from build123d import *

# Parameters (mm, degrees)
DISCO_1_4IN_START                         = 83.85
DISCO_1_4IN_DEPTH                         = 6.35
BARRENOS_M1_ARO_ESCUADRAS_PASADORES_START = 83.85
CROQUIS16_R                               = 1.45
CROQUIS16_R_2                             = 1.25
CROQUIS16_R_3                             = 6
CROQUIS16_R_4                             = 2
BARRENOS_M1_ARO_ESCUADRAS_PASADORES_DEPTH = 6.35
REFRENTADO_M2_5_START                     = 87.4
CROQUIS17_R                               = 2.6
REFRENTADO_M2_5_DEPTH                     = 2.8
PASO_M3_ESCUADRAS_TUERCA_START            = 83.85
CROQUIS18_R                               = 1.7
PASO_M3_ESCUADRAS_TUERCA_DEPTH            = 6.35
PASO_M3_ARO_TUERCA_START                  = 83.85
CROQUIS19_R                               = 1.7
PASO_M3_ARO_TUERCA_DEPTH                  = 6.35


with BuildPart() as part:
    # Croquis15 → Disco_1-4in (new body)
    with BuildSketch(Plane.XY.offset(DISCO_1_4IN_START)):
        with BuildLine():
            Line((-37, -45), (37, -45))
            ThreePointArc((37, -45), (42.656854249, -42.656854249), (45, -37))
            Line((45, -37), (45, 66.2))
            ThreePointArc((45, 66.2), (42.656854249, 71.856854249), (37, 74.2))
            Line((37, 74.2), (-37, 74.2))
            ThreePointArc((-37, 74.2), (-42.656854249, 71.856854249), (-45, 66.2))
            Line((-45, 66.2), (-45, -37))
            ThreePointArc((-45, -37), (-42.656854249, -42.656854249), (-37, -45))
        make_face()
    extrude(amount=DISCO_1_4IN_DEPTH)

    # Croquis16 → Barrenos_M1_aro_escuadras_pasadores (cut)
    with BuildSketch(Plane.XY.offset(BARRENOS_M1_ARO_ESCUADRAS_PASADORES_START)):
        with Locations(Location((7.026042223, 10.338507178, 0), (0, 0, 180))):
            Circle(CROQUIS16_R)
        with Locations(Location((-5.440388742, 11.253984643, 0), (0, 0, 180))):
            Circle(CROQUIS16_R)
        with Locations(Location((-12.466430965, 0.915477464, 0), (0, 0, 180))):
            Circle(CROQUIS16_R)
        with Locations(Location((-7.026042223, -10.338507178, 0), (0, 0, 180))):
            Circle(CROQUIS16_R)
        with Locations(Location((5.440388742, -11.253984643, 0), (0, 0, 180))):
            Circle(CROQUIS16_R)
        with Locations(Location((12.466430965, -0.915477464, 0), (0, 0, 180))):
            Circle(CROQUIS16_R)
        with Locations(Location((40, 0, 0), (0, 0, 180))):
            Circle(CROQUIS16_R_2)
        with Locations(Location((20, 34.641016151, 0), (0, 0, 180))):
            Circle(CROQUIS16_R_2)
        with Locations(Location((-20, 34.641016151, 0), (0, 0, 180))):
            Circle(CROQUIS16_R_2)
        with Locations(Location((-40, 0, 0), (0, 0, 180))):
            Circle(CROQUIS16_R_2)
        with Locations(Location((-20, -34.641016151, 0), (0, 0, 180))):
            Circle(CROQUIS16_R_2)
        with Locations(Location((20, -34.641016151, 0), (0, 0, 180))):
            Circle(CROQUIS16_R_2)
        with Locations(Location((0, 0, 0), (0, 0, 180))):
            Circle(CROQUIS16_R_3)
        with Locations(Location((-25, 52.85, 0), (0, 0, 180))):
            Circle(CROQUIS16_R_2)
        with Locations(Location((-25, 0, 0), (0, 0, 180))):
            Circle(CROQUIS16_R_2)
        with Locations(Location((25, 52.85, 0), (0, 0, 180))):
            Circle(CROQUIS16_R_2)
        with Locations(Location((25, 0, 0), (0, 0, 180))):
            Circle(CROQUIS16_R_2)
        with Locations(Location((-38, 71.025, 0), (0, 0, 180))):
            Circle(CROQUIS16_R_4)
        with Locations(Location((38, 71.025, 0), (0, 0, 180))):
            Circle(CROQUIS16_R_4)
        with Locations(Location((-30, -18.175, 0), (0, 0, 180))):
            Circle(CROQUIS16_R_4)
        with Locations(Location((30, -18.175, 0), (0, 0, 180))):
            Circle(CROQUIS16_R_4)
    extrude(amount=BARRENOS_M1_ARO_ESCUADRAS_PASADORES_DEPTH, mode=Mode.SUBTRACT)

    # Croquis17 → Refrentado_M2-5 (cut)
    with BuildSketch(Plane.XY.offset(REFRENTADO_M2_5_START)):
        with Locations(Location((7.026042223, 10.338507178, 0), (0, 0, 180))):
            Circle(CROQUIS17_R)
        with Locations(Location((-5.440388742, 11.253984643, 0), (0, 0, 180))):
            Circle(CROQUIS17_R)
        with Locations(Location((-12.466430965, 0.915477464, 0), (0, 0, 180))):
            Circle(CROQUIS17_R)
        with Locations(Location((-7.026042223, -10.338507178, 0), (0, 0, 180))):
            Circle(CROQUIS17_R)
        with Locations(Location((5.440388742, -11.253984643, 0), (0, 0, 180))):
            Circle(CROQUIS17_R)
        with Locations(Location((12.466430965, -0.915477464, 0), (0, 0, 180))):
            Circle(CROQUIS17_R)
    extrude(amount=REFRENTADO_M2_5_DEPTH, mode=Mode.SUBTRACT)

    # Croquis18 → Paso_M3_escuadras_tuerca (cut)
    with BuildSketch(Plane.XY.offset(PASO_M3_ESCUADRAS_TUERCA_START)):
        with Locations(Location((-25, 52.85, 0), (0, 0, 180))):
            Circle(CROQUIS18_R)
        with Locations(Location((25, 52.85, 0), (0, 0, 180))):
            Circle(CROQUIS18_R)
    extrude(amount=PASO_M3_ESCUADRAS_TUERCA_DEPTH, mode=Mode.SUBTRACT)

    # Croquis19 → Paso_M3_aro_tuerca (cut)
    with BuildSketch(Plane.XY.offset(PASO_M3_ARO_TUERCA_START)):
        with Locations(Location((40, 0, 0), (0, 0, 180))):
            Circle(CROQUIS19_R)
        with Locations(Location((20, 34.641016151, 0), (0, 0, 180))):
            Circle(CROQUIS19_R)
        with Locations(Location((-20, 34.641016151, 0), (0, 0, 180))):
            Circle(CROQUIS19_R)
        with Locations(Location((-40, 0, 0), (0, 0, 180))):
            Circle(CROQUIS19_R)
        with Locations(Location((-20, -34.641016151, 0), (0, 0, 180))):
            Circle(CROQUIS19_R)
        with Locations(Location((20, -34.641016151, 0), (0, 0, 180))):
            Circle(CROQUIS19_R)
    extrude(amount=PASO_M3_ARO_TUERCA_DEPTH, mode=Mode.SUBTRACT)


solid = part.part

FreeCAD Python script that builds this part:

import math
import FreeCAD as App
import Part
import Sketcher
from FreeCAD import Vector
Q = App.Units.Quantity

doc = App.newDocument("Part")
body = doc.addObject("PartDesign::Body", "Body")

# Sketch on XY plane
sketch1 = doc.addObject("Sketcher::SketchObject", "Sketch")
body.addObject(sketch1)
sketch1.AttachmentSupport = (doc.XY_Plane, [""])
sketch1.MapMode = "FlatFace"
sketch1.AttachmentOffset = App.Placement(Vector(0, 0, 83.85), App.Rotation())
sketch1.addGeometry(Part.LineSegment(Vector(-37, -45, 0), Vector(37, -45, 0)), False)
sketch1.addGeometry(Part.ArcOfCircle(Part.Circle(Vector(37, -37, 0), Vector(0, 0, 1), 8), math.radians(-90), math.radians(0)), False)
sketch1.addGeometry(Part.LineSegment(Vector(45, -37, 0), Vector(45, 66, 0)), False)
sketch1.addGeometry(Part.ArcOfCircle(Part.Circle(Vector(37, 66, 0), Vector(0, 0, 1), 8), math.radians(0), math.radians(90)), False)
sketch1.addGeometry(Part.LineSegment(Vector(37, 74, 0), Vector(-37, 74, 0)), False)
sketch1.addGeometry(Part.ArcOfCircle(Part.Circle(Vector(-37, 66, 0), Vector(0, 0, 1), 8), math.radians(90), math.radians(180)), False)
sketch1.addGeometry(Part.LineSegment(Vector(-45, 66, 0), Vector(-45, -37, 0)), False)
sketch1.addGeometry(Part.ArcOfCircle(Part.Circle(Vector(-37, -37, 0), Vector(0, 0, 1), 8), math.radians(-180), math.radians(-90)), False)
sketch1.addConstraint(Sketcher.Constraint("Tangent", 0, 2, 1, 1))
sketch1.addConstraint(Sketcher.Constraint("Tangent", 1, 2, 2, 1))
sketch1.addConstraint(Sketcher.Constraint("Tangent", 2, 2, 3, 1))
sketch1.addConstraint(Sketcher.Constraint("Tangent", 3, 2, 4, 1))
sketch1.addConstraint(Sketcher.Constraint("Tangent", 4, 2, 5, 1))
sketch1.addConstraint(Sketcher.Constraint("Tangent", 5, 2, 6, 1))
sketch1.addConstraint(Sketcher.Constraint("Tangent", 6, 2, 7, 1))
sketch1.addConstraint(Sketcher.Constraint("Tangent", 7, 2, 0, 1))
sketch1.addConstraint(Sketcher.Constraint("Horizontal", 0))
sketch1.addConstraint(Sketcher.Constraint("Vertical", 2))
sketch1.addConstraint(Sketcher.Constraint("Horizontal", 4))
sketch1.addConstraint(Sketcher.Constraint("Vertical", 6))
sketch1.addConstraint(Sketcher.Constraint("Equal", 1, 3))
sketch1.addConstraint(Sketcher.Constraint("Equal", 3, 5))
sketch1.addConstraint(Sketcher.Constraint("Equal", 5, 7))
sketch1.addConstraint(Sketcher.Constraint("Radius", 1, Q("8 mm")))
sketch1.addConstraint(Sketcher.Constraint("DistanceX", 0, 1, 0, 2, Q("74 mm")))
sketch1.addConstraint(Sketcher.Constraint("DistanceY", 2, 1, 2, 2, Q("103.2 mm")))
sketch1.addConstraint(Sketcher.Constraint("DistanceX", -1, 1, 1, 3, Q("37 mm")))
sketch1.addConstraint(Sketcher.Constraint("DistanceY", 1, 3, -1, 1, Q("37 mm")))
pad1 = doc.addObject("PartDesign::Pad", "Pad")
body.addObject(pad1)
pad1.Profile = sketch1
pad1.Length = 6.35

# Sketch on XY plane
sketch2 = doc.addObject("Sketcher::SketchObject", "Sketch001")
body.addObject(sketch2)
sketch2.AttachmentSupport = (doc.XY_Plane, [""])
sketch2.MapMode = "FlatFace"
sketch2.AttachmentOffset = App.Placement(Vector(0, 0, 83.85), App.Rotation())
sketch2.addGeometry(Part.Circle(Vector(7, 10.3, 0), Vector(0, 0, 1), 1.4), False)
sketch2.addGeometry(Part.Circle(Vector(-5.4, 11.3, 0), Vector(0, 0, 1), 1.4), False)
sketch2.addGeometry(Part.Circle(Vector(-12.5, 0.9, 0), Vector(0, 0, 1), 1.4), False)
sketch2.addGeometry(Part.Circle(Vector(-7, -10.3, 0), Vector(0, 0, 1), 1.4), False)
sketch2.addGeometry(Part.Circle(Vector(5.4, -11.3, 0), Vector(0, 0, 1), 1.4), False)
sketch2.addGeometry(Part.Circle(Vector(12.5, -0.9, 0), Vector(0, 0, 1), 1.4), False)
sketch2.addGeometry(Part.Circle(Vector(40, 0, 0), Vector(0, 0, 1), 1.2), False)
sketch2.addGeometry(Part.Circle(Vector(20, 34.6, 0), Vector(0, 0, 1), 1.2), False)
sketch2.addGeometry(Part.Circle(Vector(-20, 34.6, 0), Vector(0, 0, 1), 1.2), False)
sketch2.addGeometry(Part.Circle(Vector(-40, 0, 0), Vector(0, 0, 1), 1.2), False)
sketch2.addGeometry(Part.Circle(Vector(-20, -34.6, 0), Vector(0, 0, 1), 1.2), False)
sketch2.addGeometry(Part.Circle(Vector(20, -34.6, 0), Vector(0, 0, 1), 1.2), False)
sketch2.addGeometry(Part.Circle(Vector(0, 0, 0), Vector(0, 0, 1), 6), False)
sketch2.addGeometry(Part.Circle(Vector(-25, 52.9, 0), Vector(0, 0, 1), 1.2), False)
sketch2.addGeometry(Part.Circle(Vector(-25, 0, 0), Vector(0, 0, 1), 1.2), False)
sketch2.addGeometry(Part.Circle(Vector(25, 52.9, 0), Vector(0, 0, 1), 1.2), False)
sketch2.addGeometry(Part.Circle(Vector(25, 0, 0), Vector(0, 0, 1), 1.2), False)
sketch2.addGeometry(Part.Circle(Vector(-38, 71, 0), Vector(0, 0, 1), 2), False)
sketch2.addGeometry(Part.Circle(Vector(38, 71, 0), Vector(0, 0, 1), 2), False)
sketch2.addGeometry(Part.Circle(Vector(-30, -18.2, 0), Vector(0, 0, 1), 2), False)
sketch2.addGeometry(Part.Circle(Vector(30, -18.2, 0), Vector(0, 0, 1), 2), False)
sketch2.addConstraint(Sketcher.Constraint("Coincident", 12, 3, -1, 1))
sketch2.addConstraint(Sketcher.Constraint("Equal", 0, 1))
sketch2.addConstraint(Sketcher.Constraint("Equal", 1, 2))
sketch2.addConstraint(Sketcher.Constraint("Equal", 2, 3))
sketch2.addConstraint(Sketcher.Constraint("Equal", 3, 4))
sketch2.addConstraint(Sketcher.Constraint("Equal", 4, 5))
sketch2.addConstraint(Sketcher.Constraint("Equal", 6, 7))
sketch2.addConstraint(Sketcher.Constraint("Equal", 7, 8))
sketch2.addConstraint(Sketcher.Constraint("Equal", 8, 9))
sketch2.addConstraint(Sketcher.Constraint("Equal", 9, 10))
sketch2.addConstraint(Sketcher.Constraint("Equal", 10, 11))
sketch2.addConstraint(Sketcher.Constraint("Equal", 11, 13))
sketch2.addConstraint(Sketcher.Constraint("Equal", 13, 14))
sketch2.addConstraint(Sketcher.Constraint("Equal", 14, 15))
sketch2.addConstraint(Sketcher.Constraint("Equal", 15, 16))
sketch2.addConstraint(Sketcher.Constraint("Equal", 17, 18))
sketch2.addConstraint(Sketcher.Constraint("Equal", 18, 19))
sketch2.addConstraint(Sketcher.Constraint("Equal", 19, 20))
sketch2.addConstraint(Sketcher.Constraint("Symmetric", 0, 3, 3, 3, -1, 1))
sketch2.addConstraint(Sketcher.Constraint("Symmetric", 1, 3, 4, 3, -1, 1))
sketch2.addConstraint(Sketcher.Constraint("Symmetric", 2, 3, 5, 3, -1, 1))
sketch2.addConstraint(Sketcher.Constraint("Symmetric", 6, 3, 9, 3, -1, 1))
sketch2.addConstraint(Sketcher.Constraint("Symmetric", 7, 3, 10, 3, -1, 1))
sketch2.addConstraint(Sketcher.Constraint("Symmetric", 8, 3, 11, 3, -1, 1))
sketch2.addConstraint(Sketcher.Constraint("Symmetric", 14, 3, 16, 3, -1, 1))
sketch2.addConstraint(Sketcher.Constraint("Symmetric", 7, 3, 8, 3, -2))
sketch2.addConstraint(Sketcher.Constraint("Symmetric", 13, 3, 15, 3, -2))
sketch2.addConstraint(Sketcher.Constraint("Symmetric", 17, 3, 18, 3, -2))
sketch2.addConstraint(Sketcher.Constraint("Symmetric", 19, 3, 20, 3, -2))
sketch2.addConstraint(Sketcher.Constraint("PointOnObject", 6, 3, -1))
sketch2.addConstraint(Sketcher.Constraint("PointOnObject", 14, 3, -1))
sketch2.addConstraint(Sketcher.Constraint("Vertical", 13, 3, 14, 3))
sketch2.addConstraint(Sketcher.Constraint("Diameter", 12, Q("12 mm")))
sketch2.addConstraint(Sketcher.Constraint("Diameter", 17, Q("4 mm")))
sketch2.addConstraint(Sketcher.Constraint("Diameter", 0, Q("2.9 mm")))
sketch2.addConstraint(Sketcher.Constraint("Diameter", 6, Q("2.5 mm")))
sketch2.addConstraint(Sketcher.Constraint("DistanceX", -1, 1, 6, 3, Q("40 mm")))
sketch2.addConstraint(Sketcher.Constraint("DistanceX", -1, 1, 7, 3, Q("20 mm")))
sketch2.addConstraint(Sketcher.Constraint("DistanceX", 13, 3, -1, 1, Q("25 mm")))
sketch2.addConstraint(Sketcher.Constraint("DistanceX", 17, 3, -1, 1, Q("38 mm")))
sketch2.addConstraint(Sketcher.Constraint("DistanceX", 19, 3, -1, 1, Q("30 mm")))
sketch2.addConstraint(Sketcher.Constraint("DistanceY", -1, 1, 13, 3, Q("52.85 mm")))
sketch2.addConstraint(Sketcher.Constraint("DistanceY", -1, 1, 17, 3, Q("71.025 mm")))
sketch2.addConstraint(Sketcher.Constraint("DistanceY", 19, 3, -1, 1, Q("18.175 mm")))
sketch2.addConstraint(Sketcher.Constraint("DistanceX", 1, 3, -1, 1, Q("5.440389 mm")))
sketch2.addConstraint(Sketcher.Constraint("DistanceX", 2, 3, -1, 1, Q("12.466431 mm")))
sketch2.addConstraint(Sketcher.Constraint("DistanceX", 1, 3, 0, 3, Q("12.466431 mm")))
sketch2.addConstraint(Sketcher.Constraint("DistanceY", 2, 3, 0, 3, Q("9.42303 mm")))
sketch2.addConstraint(Sketcher.Constraint("DistanceY", 3, 3, 1, 3, Q("21.592492 mm")))
sketch2.addConstraint(Sketcher.Constraint("DistanceY", 4, 3, 1, 3, Q("22.507969 mm")))
sketch2.addConstraint(Sketcher.Constraint("DistanceY", 0, 3, 7, 3, Q("24.302509 mm")))
pocket1 = doc.addObject("PartDesign::Pocket", "Pocket")
body.addObject(pocket1)
pocket1.Profile = sketch2
pocket1.Length = 6.35
pocket1.Reversed = True

# Sketch on XY plane
sketch3 = doc.addObject("Sketcher::SketchObject", "Sketch002")
body.addObject(sketch3)
sketch3.AttachmentSupport = (doc.XY_Plane, [""])
sketch3.MapMode = "FlatFace"
sketch3.AttachmentOffset = App.Placement(Vector(0, 0, 87.4), App.Rotation())
sketch3.addGeometry(Part.Circle(Vector(7, 10.3, 0), Vector(0, 0, 1), 2.6), False)
sketch3.addGeometry(Part.Circle(Vector(-5.4, 11.3, 0), Vector(0, 0, 1), 2.6), False)
sketch3.addGeometry(Part.Circle(Vector(-12.5, 0.9, 0), Vector(0, 0, 1), 2.6), False)
sketch3.addGeometry(Part.Circle(Vector(-7, -10.3, 0), Vector(0, 0, 1), 2.6), False)
sketch3.addGeometry(Part.Circle(Vector(5.4, -11.3, 0), Vector(0, 0, 1), 2.6), False)
sketch3.addGeometry(Part.Circle(Vector(12.5, -0.9, 0), Vector(0, 0, 1), 2.6), False)
sketch3.addConstraint(Sketcher.Constraint("Equal", 0, 1))
sketch3.addConstraint(Sketcher.Constraint("Equal", 1, 2))
sketch3.addConstraint(Sketcher.Constraint("Equal", 2, 3))
sketch3.addConstraint(Sketcher.Constraint("Equal", 3, 4))
sketch3.addConstraint(Sketcher.Constraint("Equal", 4, 5))
sketch3.addConstraint(Sketcher.Constraint("Symmetric", 0, 3, 3, 3, -1, 1))
sketch3.addConstraint(Sketcher.Constraint("Symmetric", 1, 3, 4, 3, -1, 1))
sketch3.addConstraint(Sketcher.Constraint("Symmetric", 2, 3, 5, 3, -1, 1))
sketch3.addConstraint(Sketcher.Constraint("Diameter", 0, Q("5.2 mm")))
sketch3.addConstraint(Sketcher.Constraint("DistanceX", 1, 3, -1, 1, Q("5.440389 mm")))
sketch3.addConstraint(Sketcher.Constraint("DistanceX", 2, 3, -1, 1, Q("12.466431 mm")))
sketch3.addConstraint(Sketcher.Constraint("DistanceX", 1, 3, 0, 3, Q("12.466431 mm")))
sketch3.addConstraint(Sketcher.Constraint("DistanceY", 2, 3, 0, 3, Q("9.42303 mm")))
sketch3.addConstraint(Sketcher.Constraint("DistanceY", 3, 3, 1, 3, Q("21.592492 mm")))
sketch3.addConstraint(Sketcher.Constraint("DistanceY", 4, 3, 1, 3, Q("22.507969 mm")))
pocket2 = doc.addObject("PartDesign::Pocket", "Pocket001")
body.addObject(pocket2)
pocket2.Profile = sketch3
pocket2.Length = 2.8
pocket2.Reversed = True

# Sketch on XY plane
sketch4 = doc.addObject("Sketcher::SketchObject", "Sketch003")
body.addObject(sketch4)
sketch4.AttachmentSupport = (doc.XY_Plane, [""])
sketch4.MapMode = "FlatFace"
sketch4.AttachmentOffset = App.Placement(Vector(0, 0, 83.85), App.Rotation())
sketch4.addGeometry(Part.Circle(Vector(-25, 52.9, 0), Vector(0, 0, 1), 1.7), False)
sketch4.addGeometry(Part.Circle(Vector(25, 52.9, 0), Vector(0, 0, 1), 1.7), False)
sketch4.addConstraint(Sketcher.Constraint("Equal", 0, 1))
sketch4.addConstraint(Sketcher.Constraint("Symmetric", 0, 3, 1, 3, -2))
sketch4.addConstraint(Sketcher.Constraint("Diameter", 0, Q("3.4 mm")))
sketch4.addConstraint(Sketcher.Constraint("DistanceX", 0, 3, -1, 1, Q("25 mm")))
sketch4.addConstraint(Sketcher.Constraint("DistanceY", -1, 1, 0, 3, Q("52.85 mm")))
pocket3 = doc.addObject("PartDesign::Pocket", "Pocket002")
body.addObject(pocket3)
pocket3.Profile = sketch4
pocket3.Length = 6.35
pocket3.Reversed = True

# Sketch on XY plane
sketch5 = doc.addObject("Sketcher::SketchObject", "Sketch004")
body.addObject(sketch5)
sketch5.AttachmentSupport = (doc.XY_Plane, [""])
sketch5.MapMode = "FlatFace"
sketch5.AttachmentOffset = App.Placement(Vector(0, 0, 83.85), App.Rotation())
sketch5.addGeometry(Part.Circle(Vector(40, 0, 0), Vector(0, 0, 1), 1.7), False)
sketch5.addGeometry(Part.Circle(Vector(20, 34.6, 0), Vector(0, 0, 1), 1.7), False)
sketch5.addGeometry(Part.Circle(Vector(-20, 34.6, 0), Vector(0, 0, 1), 1.7), False)
sketch5.addGeometry(Part.Circle(Vector(-40, 0, 0), Vector(0, 0, 1), 1.7), False)
sketch5.addGeometry(Part.Circle(Vector(-20, -34.6, 0), Vector(0, 0, 1), 1.7), False)
sketch5.addGeometry(Part.Circle(Vector(20, -34.6, 0), Vector(0, 0, 1), 1.7), False)
sketch5.addConstraint(Sketcher.Constraint("Equal", 0, 1))
sketch5.addConstraint(Sketcher.Constraint("Equal", 1, 2))
sketch5.addConstraint(Sketcher.Constraint("Equal", 2, 3))
sketch5.addConstraint(Sketcher.Constraint("Equal", 3, 4))
sketch5.addConstraint(Sketcher.Constraint("Equal", 4, 5))
sketch5.addConstraint(Sketcher.Constraint("Symmetric", 0, 3, 3, 3, -1, 1))
sketch5.addConstraint(Sketcher.Constraint("Symmetric", 1, 3, 4, 3, -1, 1))
sketch5.addConstraint(Sketcher.Constraint("Symmetric", 2, 3, 5, 3, -1, 1))
sketch5.addConstraint(Sketcher.Constraint("Symmetric", 1, 3, 2, 3, -2))
sketch5.addConstraint(Sketcher.Constraint("PointOnObject", 0, 3, -1))
sketch5.addConstraint(Sketcher.Constraint("Diameter", 0, Q("3.4 mm")))
sketch5.addConstraint(Sketcher.Constraint("DistanceX", -1, 1, 0, 3, Q("40 mm")))
sketch5.addConstraint(Sketcher.Constraint("DistanceX", -1, 1, 1, 3, Q("20 mm")))
sketch5.addConstraint(Sketcher.Constraint("DistanceY", -1, 1, 1, 3, Q("34.641016 mm")))
pocket4 = doc.addObject("PartDesign::Pocket", "Pocket003")
body.addObject(pocket4)
pocket4.Profile = sketch5
pocket4.Length = 6.35
pocket4.Reversed = True

doc.recompute()
